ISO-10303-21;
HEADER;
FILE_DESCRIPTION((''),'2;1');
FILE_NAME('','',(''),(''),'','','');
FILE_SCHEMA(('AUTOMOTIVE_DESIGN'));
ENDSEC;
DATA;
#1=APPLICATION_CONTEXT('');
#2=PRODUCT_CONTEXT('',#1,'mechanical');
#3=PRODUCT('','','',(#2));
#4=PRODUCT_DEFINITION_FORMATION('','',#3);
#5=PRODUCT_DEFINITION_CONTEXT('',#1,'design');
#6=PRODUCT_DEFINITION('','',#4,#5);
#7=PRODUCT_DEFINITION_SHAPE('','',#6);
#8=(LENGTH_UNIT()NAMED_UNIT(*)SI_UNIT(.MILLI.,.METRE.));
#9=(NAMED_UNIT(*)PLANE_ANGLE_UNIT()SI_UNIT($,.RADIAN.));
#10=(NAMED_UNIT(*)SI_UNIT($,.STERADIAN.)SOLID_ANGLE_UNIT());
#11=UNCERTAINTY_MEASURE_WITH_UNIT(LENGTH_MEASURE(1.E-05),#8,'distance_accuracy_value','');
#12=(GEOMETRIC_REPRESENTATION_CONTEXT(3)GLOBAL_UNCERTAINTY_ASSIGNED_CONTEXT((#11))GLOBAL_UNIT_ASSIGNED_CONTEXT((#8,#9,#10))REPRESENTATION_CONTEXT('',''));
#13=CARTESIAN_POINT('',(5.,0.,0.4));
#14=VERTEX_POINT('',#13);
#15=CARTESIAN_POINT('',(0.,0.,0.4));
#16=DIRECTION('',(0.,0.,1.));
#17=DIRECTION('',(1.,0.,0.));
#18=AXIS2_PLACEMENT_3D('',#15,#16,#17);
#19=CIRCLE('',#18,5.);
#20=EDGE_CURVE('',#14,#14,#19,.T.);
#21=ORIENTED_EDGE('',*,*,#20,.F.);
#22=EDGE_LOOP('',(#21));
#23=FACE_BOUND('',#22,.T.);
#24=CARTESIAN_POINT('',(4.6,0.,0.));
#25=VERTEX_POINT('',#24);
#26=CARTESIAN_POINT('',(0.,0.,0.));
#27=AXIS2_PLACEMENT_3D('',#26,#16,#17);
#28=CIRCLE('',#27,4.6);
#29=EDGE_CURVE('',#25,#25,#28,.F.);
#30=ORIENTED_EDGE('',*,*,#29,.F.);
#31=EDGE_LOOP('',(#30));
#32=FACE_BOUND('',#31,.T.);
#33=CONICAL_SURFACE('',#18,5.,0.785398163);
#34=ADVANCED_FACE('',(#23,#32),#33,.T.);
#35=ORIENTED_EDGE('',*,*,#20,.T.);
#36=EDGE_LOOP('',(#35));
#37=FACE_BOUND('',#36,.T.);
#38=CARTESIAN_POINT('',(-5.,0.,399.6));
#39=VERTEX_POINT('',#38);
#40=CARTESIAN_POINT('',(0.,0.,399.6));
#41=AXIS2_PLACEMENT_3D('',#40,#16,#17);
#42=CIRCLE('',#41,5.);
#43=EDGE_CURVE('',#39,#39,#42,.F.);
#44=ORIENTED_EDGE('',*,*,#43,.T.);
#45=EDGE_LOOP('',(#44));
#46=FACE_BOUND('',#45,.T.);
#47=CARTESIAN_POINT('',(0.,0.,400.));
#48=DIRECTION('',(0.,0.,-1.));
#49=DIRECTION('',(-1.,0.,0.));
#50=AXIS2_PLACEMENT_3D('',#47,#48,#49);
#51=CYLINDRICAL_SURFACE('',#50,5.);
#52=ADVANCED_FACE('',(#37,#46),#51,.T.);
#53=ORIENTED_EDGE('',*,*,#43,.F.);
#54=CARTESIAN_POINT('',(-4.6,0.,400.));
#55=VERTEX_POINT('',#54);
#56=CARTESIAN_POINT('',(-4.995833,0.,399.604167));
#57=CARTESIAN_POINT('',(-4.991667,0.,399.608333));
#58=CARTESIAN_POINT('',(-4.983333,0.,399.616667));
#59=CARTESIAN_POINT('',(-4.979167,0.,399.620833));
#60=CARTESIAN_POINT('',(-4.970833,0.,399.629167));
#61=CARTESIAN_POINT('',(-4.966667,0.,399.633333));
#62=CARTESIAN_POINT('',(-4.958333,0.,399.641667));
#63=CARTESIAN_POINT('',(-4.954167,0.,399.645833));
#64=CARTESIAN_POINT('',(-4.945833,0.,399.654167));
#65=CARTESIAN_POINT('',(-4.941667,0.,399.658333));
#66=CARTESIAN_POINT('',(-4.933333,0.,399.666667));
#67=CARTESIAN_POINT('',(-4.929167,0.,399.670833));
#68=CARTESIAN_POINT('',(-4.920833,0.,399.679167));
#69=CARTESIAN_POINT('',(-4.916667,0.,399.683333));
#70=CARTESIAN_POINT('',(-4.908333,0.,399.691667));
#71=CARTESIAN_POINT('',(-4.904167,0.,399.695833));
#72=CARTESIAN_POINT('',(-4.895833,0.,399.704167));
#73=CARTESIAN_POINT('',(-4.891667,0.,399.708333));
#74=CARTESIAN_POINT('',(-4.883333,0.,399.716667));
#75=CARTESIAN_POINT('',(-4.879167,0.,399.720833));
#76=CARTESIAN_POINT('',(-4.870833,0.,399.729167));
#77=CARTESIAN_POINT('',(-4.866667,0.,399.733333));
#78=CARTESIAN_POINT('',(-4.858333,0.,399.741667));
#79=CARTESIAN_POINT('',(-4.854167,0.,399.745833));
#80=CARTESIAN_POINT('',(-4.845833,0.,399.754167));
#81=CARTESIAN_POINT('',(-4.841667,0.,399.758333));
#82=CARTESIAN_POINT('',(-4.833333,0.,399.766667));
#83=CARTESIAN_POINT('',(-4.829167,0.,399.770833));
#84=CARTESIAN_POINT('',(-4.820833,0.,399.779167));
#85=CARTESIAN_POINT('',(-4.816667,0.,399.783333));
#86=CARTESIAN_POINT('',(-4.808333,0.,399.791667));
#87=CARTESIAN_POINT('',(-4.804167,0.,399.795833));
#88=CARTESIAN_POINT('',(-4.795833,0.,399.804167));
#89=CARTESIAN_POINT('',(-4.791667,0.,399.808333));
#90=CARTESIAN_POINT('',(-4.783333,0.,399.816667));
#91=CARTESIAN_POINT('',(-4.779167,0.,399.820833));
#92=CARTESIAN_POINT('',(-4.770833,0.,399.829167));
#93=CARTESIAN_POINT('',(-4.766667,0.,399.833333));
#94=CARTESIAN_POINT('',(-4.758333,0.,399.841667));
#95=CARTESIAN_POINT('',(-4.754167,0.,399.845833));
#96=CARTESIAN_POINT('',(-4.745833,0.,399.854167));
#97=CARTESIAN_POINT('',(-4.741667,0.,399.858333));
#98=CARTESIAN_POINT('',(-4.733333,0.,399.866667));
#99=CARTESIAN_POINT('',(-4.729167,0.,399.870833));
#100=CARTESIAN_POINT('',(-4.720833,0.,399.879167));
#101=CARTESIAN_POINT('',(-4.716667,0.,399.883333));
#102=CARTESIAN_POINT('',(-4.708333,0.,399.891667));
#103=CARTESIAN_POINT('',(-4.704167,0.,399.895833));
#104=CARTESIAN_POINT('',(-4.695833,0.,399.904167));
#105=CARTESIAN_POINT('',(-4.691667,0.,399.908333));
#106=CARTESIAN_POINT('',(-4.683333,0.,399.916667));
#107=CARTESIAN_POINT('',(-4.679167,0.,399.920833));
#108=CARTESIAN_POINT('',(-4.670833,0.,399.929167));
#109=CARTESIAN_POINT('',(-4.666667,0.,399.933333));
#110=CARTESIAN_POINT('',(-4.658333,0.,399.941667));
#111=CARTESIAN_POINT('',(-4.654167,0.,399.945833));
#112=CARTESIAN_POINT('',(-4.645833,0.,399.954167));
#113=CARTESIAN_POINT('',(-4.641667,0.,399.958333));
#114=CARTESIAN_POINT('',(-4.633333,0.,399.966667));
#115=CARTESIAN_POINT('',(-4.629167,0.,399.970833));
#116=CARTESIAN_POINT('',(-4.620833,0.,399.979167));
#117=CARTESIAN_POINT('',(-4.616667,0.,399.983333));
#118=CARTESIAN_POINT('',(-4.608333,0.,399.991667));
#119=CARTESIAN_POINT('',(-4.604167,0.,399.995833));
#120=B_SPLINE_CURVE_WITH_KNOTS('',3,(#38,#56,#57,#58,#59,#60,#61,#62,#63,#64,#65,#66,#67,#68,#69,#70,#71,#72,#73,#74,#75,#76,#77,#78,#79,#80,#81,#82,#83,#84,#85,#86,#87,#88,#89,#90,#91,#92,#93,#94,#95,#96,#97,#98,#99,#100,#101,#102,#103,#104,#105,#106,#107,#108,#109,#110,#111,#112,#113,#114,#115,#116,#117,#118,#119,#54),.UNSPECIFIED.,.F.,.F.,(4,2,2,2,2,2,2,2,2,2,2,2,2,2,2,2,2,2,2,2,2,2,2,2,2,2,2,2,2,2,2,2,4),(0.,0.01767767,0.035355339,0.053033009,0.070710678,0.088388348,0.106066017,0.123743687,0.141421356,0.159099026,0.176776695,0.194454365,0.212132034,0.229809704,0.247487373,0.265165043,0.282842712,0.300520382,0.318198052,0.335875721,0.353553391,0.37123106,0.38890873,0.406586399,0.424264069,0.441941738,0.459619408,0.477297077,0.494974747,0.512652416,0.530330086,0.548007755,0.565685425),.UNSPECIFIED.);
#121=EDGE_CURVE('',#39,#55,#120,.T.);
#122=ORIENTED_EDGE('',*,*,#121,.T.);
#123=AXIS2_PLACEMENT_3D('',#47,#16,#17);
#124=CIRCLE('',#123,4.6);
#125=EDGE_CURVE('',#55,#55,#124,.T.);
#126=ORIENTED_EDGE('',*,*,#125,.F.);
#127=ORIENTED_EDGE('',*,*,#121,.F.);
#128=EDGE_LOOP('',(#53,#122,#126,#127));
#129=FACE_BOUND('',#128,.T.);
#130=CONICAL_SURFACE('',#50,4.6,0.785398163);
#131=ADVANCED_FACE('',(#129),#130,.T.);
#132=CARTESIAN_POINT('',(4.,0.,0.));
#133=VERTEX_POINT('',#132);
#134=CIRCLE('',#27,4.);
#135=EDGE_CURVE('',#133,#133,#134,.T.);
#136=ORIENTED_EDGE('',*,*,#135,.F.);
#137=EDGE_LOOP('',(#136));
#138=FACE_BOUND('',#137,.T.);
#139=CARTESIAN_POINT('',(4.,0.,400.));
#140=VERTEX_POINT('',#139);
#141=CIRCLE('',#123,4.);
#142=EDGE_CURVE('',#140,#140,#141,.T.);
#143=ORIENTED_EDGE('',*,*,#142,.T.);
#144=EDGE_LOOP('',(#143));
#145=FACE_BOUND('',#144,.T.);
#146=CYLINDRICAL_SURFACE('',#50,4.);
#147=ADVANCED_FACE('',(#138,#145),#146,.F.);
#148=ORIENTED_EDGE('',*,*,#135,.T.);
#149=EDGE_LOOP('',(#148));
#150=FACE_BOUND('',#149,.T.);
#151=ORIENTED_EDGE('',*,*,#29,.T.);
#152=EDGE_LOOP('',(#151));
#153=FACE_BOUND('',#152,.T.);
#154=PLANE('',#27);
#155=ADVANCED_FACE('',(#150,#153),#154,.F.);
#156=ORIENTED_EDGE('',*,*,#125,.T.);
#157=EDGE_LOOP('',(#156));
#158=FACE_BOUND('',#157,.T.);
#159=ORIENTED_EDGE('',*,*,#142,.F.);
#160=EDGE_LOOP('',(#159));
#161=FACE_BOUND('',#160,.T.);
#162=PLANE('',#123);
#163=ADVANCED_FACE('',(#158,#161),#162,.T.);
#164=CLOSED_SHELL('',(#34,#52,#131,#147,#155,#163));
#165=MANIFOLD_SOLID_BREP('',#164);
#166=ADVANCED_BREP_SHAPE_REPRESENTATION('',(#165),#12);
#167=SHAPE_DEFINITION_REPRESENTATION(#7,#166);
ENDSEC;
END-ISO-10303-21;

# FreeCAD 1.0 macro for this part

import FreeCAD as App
import Part
import Sketcher

V = App.Vector
Q = App.Units.Quantity


def edges_at(feature, points):
    """Names of the edges that pass closest to the given points."""
    edges = feature.Shape.Edges
    near = lambda p: min(range(len(edges)), key=lambda i: edges[i].distToShape(Part.Vertex(*p))[0])
    return sorted({f"Edge{near(p) + 1}" for p in points})

doc = App.newDocument("Part")
params = doc.addObject("Spreadsheet::Sheet", "Params")
for row, (alias, value) in enumerate([
    ("sketch1_diameter", "10 mm"),
    ("sketch1_diameter2", "8 mm"),
    ("pad1_length", "400 mm"),
    ("chamfer_size", "0.4 mm"),
], start=1):
    params.set(f"A{row}", alias)
    params.set(f"B{row}", "=" + value)
    params.setAlias(f"B{row}", alias)

body = doc.addObject("PartDesign::Body", "Body")

sketch1 = body.newObject("Sketcher::SketchObject", "Sketch")
sketch1.AttachmentSupport = (doc.getObject("XY_Plane"), [""])
sketch1.MapMode = "FlatFace"
sketch1.addGeometry(Part.Circle(V(0, 0, 0), V(0, 0, 1), 5), False)
sketch1.addGeometry(Part.Circle(V(0, 0, 0), V(0, 0, 1), 4), False)
sketch1.addConstraint(Sketcher.Constraint("Coincident", 0, 3, -1, 1))
sketch1.addConstraint(Sketcher.Constraint("Coincident", 1, 3, -1, 1))
sketch1.addConstraint(Sketcher.Constraint("Diameter", 0, Q("10 mm")))
sketch1.addConstraint(Sketcher.Constraint("Diameter", 1, Q("8 mm")))
sketch1.setExpression("Constraints[2]", "Params.sketch1_diameter")
sketch1.setExpression("Constraints[3]", "Params.sketch1_diameter2")
pad1 = body.newObject("PartDesign::Pad", "Pad")
pad1.Profile = sketch1
pad1.setExpression("Length", "Params.pad1_length")
doc.recompute()

chamfer = body.newObject("PartDesign::Chamfer", "Chamfer")
chamfer.Base = (pad1, edges_at(pad1, [(-5, 0, 0), (-5, 0, 400)]))
chamfer.setExpression("Size", "Params.chamfer_size")

doc.recompute()
